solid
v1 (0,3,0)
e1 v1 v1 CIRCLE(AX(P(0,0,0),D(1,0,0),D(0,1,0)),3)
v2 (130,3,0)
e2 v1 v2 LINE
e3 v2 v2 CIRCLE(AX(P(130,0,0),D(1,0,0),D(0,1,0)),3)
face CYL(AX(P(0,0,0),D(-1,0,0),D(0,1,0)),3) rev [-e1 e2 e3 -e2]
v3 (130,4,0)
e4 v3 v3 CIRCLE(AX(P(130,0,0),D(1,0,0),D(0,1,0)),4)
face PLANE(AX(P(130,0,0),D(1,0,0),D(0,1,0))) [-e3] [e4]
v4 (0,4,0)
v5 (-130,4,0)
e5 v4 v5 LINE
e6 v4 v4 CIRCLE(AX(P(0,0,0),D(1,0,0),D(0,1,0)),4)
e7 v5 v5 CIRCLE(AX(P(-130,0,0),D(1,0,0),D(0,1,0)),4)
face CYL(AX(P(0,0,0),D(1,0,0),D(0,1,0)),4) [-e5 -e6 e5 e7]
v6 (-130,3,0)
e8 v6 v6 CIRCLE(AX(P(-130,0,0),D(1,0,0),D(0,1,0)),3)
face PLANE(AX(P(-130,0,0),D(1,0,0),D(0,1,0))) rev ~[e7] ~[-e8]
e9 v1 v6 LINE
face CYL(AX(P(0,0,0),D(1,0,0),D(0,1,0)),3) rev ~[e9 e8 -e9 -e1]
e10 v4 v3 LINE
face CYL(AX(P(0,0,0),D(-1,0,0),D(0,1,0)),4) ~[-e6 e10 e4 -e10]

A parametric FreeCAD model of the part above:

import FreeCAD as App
import Part
import Sketcher
from FreeCAD import Vector

doc = App.newDocument("Part")
body = doc.addObject("PartDesign::Body", "Body")

sketch1 = body.newObject("Sketcher::SketchObject", "Sketch")
sketch1.AttachmentSupport = (doc.getObject("YZ_Plane"), [""])
sketch1.MapMode = "FlatFace"
sketch1.addGeometry([
    Part.Circle(Vector(0, 0, 0), Vector(0, 0, 1), 4),
    Part.Circle(Vector(0, 0, 0), Vector(0, 0, 1), 3),
], False)
sketch1.addConstraint([
    Sketcher.Constraint("Coincident", 0, 3, -1, 1),
    Sketcher.Constraint("Coincident", 1, 3, -1, 1),
    Sketcher.Constraint("Diameter", 0, 8.0),
    Sketcher.Constraint("Diameter", 1, 6.0),
])
pad1 = body.newObject("PartDesign::Pad", "Pad")
pad1.Profile = sketch1
pad1.Length = 260
pad1.Midplane = True

doc.recompute()
